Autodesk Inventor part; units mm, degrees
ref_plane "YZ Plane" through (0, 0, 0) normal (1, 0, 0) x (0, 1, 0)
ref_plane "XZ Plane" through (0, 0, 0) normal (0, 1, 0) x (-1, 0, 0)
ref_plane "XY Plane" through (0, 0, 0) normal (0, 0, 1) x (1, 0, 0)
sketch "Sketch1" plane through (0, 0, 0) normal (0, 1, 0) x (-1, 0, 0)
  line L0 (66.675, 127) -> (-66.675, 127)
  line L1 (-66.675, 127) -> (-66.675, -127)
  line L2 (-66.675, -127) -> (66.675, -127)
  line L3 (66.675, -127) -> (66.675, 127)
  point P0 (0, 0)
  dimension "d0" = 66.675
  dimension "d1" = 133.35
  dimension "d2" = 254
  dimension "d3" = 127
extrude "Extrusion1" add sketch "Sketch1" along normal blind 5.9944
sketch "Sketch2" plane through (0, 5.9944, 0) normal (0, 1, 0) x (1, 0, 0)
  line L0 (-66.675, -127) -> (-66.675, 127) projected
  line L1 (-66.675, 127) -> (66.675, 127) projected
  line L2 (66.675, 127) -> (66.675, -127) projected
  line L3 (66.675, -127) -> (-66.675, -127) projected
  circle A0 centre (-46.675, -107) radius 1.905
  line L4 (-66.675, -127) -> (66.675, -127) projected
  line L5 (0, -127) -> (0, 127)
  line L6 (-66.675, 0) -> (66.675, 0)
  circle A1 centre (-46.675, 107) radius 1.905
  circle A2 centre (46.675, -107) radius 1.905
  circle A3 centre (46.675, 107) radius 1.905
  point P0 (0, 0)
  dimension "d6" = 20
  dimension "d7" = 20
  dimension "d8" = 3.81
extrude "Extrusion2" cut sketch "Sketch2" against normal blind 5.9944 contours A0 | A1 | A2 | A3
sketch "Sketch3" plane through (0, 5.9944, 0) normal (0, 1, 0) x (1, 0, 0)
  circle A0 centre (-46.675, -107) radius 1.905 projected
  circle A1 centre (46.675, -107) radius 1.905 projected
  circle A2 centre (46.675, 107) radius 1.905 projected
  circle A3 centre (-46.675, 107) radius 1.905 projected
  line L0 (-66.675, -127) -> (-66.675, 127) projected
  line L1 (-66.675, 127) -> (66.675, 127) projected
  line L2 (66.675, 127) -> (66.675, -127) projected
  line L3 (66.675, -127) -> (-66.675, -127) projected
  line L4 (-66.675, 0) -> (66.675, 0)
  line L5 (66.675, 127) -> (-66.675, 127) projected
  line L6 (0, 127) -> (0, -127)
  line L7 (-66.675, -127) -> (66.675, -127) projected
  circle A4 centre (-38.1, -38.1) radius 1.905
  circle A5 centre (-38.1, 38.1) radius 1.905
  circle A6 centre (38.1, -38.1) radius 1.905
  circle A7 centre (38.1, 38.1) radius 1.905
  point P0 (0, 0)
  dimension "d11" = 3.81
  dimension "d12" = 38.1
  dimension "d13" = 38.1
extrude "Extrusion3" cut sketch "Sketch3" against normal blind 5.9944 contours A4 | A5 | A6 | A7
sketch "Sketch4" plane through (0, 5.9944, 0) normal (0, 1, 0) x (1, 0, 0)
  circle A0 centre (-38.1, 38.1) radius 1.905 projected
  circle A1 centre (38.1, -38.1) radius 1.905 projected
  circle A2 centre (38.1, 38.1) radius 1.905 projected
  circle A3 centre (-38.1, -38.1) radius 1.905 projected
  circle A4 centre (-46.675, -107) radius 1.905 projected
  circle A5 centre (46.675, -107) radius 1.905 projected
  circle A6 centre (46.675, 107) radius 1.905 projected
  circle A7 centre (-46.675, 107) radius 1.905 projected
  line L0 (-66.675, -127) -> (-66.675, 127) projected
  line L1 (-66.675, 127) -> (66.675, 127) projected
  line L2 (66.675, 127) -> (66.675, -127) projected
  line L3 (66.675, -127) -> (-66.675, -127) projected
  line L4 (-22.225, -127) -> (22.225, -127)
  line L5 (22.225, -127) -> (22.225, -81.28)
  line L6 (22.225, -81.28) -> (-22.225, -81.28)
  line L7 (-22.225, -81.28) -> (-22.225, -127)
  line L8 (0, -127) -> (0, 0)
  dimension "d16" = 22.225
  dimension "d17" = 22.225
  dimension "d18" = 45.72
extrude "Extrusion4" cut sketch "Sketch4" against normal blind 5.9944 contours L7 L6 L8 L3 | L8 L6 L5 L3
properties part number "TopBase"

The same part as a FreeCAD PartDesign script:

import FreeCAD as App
import Part
import Sketcher
Q = App.Units.Quantity


def add_polygon(sketch, points):
    """Adds a closed chain of lines whose ends are joined by coincident constraints."""
    first, n = sketch.GeometryCount, len(points)
    for a, b in zip(points, points[1:] + points[:1]):
        sketch.addGeometry(Part.LineSegment(App.Vector(*a, 0), App.Vector(*b, 0)), False)
    for i in range(n):
        sketch.addConstraint(Sketcher.Constraint("Coincident", first + i, 2, first + (i + 1) % n, 1))

doc = App.newDocument("Part")
body = doc.addObject("PartDesign::Body", "Body")

sketch1 = doc.addObject("Sketcher::SketchObject", "Sketch")
body.addObject(sketch1)
sketch1.AttachmentSupport = (doc.XZ_Plane, [""])
sketch1.MapMode = "FlatFace"
add_polygon(sketch1, [(-67, -127), (-67, 127), (67, 127), (67, -127)])
sketch1.addConstraint([
    Sketcher.Constraint("Vertical", 0),
    Sketcher.Constraint("Horizontal", 1),
    Sketcher.Constraint("Vertical", 2),
    Sketcher.Constraint("Horizontal", 3),
    Sketcher.Constraint("Symmetric", 0, 2, 2, 2, -1, 1),
    Sketcher.Constraint("DistanceY", 0, 1, 0, 2, Q("10 in")),
    Sketcher.Constraint("DistanceX", 1, 1, 1, 2, Q("5.25 in")),
])
pad1 = doc.addObject("PartDesign::Pad", "Pad")
body.addObject(pad1)
pad1.Profile = sketch1
pad1.Length = Q("0.236 in")
pad1.Reversed = True

sketch2 = doc.addObject("Sketcher::SketchObject", "Sketch001")
body.addObject(sketch2)
sketch2.AttachmentSupport = (doc.XZ_Plane, [""])
sketch2.MapMode = "FlatFace"
sketch2.AttachmentOffset = App.Placement(App.Vector(0, 0, -0.236 * 25.4), App.Rotation())
sketch2.addGeometry([
    Part.Circle(App.Vector(-46.7, 107, 0), App.Vector(0, 0, 1), 1.9),
    Part.Circle(App.Vector(-46.7, -107, 0), App.Vector(0, 0, 1), 1.9),
    Part.Circle(App.Vector(46.7, 107, 0), App.Vector(0, 0, 1), 1.9),
    Part.Circle(App.Vector(46.7, -107, 0), App.Vector(0, 0, 1), 1.9),
], False)
sketch2.addConstraint([
    Sketcher.Constraint("Equal", 0, 1),
    Sketcher.Constraint("Equal", 1, 2),
    Sketcher.Constraint("Equal", 2, 3),
    Sketcher.Constraint("Symmetric", 1, 3, 2, 3, -1, 1),
    Sketcher.Constraint("Symmetric", 0, 3, 3, 3, -1, 1),
    Sketcher.Constraint("Symmetric", 0, 3, 2, 3, -2),
    Sketcher.Constraint("Diameter", 0, Q("0.15 in")),
    Sketcher.Constraint("DistanceX", 0, 3, -1, 1, Q("1.8376 in")),
    Sketcher.Constraint("DistanceY", -1, 1, 0, 3, Q("4.2126 in")),
])
pocket1 = doc.addObject("PartDesign::Pocket", "Pocket")
body.addObject(pocket1)
pocket1.Profile = sketch2
pocket1.Length = Q("0.236 in")
pocket1.Reversed = True

sketch3 = doc.addObject("Sketcher::SketchObject", "Sketch002")
body.addObject(sketch3)
sketch3.AttachmentSupport = (doc.XZ_Plane, [""])
sketch3.MapMode = "FlatFace"
sketch3.AttachmentOffset = App.Placement(App.Vector(0, 0, -0.236 * 25.4), App.Rotation())
sketch3.addGeometry([
    Part.Circle(App.Vector(-38.1, 38.1, 0), App.Vector(0, 0, 1), 1.9),
    Part.Circle(App.Vector(-38.1, -38.1, 0), App.Vector(0, 0, 1), 1.9),
    Part.Circle(App.Vector(38.1, 38.1, 0), App.Vector(0, 0, 1), 1.9),
    Part.Circle(App.Vector(38.1, -38.1, 0), App.Vector(0, 0, 1), 1.9),
], False)
sketch3.addConstraint([
    Sketcher.Constraint("Equal", 0, 1),
    Sketcher.Constraint("Equal", 1, 2),
    Sketcher.Constraint("Equal", 2, 3),
    Sketcher.Constraint("Symmetric", 1, 3, 2, 3, -1, 1),
    Sketcher.Constraint("Symmetric", 0, 3, 3, 3, -1, 1),
    Sketcher.Constraint("Symmetric", 0, 3, 2, 3, -2),
    Sketcher.Constraint("Diameter", 0, Q("0.15 in")),
    Sketcher.Constraint("DistanceX", 0, 3, -1, 1, Q("1.5 in")),
    Sketcher.Constraint("DistanceY", -1, 1, 0, 3, Q("1.5 in")),
])
pocket2 = doc.addObject("PartDesign::Pocket", "Pocket001")
body.addObject(pocket2)
pocket2.Profile = sketch3
pocket2.Length = Q("0.236 in")
pocket2.Reversed = True

sketch4 = doc.addObject("Sketcher::SketchObject", "Sketch003")
body.addObject(sketch4)
sketch4.AttachmentSupport = (doc.XZ_Plane, [""])
sketch4.MapMode = "FlatFace"
sketch4.AttachmentOffset = App.Placement(App.Vector(0, 0, -0.236 * 25.4), App.Rotation())
add_polygon(sketch4, [(-22, 81), (-22, 127), (22, 127), (22, 81)])
sketch4.addConstraint([
    Sketcher.Constraint("Vertical", 0),
    Sketcher.Constraint("Horizontal", 1),
    Sketcher.Constraint("Vertical", 2),
    Sketcher.Constraint("Horizontal", 3),
    Sketcher.Constraint("DistanceY", 0, 1, 0, 2, Q("1.8 in")),
    Sketcher.Constraint("DistanceX", 0, 2, -1, 1, Q("0.875 in")),
    Sketcher.Constraint("DistanceX", -1, 1, 1, 2, Q("0.875 in")),
    Sketcher.Constraint("DistanceY", -1, 1, 0, 2, Q("5 in")),
])
pocket3 = doc.addObject("PartDesign::Pocket", "Pocket002")
body.addObject(pocket3)
pocket3.Profile = sketch4
pocket3.Length = Q("0.236 in")
pocket3.Reversed = True

doc.recompute()
